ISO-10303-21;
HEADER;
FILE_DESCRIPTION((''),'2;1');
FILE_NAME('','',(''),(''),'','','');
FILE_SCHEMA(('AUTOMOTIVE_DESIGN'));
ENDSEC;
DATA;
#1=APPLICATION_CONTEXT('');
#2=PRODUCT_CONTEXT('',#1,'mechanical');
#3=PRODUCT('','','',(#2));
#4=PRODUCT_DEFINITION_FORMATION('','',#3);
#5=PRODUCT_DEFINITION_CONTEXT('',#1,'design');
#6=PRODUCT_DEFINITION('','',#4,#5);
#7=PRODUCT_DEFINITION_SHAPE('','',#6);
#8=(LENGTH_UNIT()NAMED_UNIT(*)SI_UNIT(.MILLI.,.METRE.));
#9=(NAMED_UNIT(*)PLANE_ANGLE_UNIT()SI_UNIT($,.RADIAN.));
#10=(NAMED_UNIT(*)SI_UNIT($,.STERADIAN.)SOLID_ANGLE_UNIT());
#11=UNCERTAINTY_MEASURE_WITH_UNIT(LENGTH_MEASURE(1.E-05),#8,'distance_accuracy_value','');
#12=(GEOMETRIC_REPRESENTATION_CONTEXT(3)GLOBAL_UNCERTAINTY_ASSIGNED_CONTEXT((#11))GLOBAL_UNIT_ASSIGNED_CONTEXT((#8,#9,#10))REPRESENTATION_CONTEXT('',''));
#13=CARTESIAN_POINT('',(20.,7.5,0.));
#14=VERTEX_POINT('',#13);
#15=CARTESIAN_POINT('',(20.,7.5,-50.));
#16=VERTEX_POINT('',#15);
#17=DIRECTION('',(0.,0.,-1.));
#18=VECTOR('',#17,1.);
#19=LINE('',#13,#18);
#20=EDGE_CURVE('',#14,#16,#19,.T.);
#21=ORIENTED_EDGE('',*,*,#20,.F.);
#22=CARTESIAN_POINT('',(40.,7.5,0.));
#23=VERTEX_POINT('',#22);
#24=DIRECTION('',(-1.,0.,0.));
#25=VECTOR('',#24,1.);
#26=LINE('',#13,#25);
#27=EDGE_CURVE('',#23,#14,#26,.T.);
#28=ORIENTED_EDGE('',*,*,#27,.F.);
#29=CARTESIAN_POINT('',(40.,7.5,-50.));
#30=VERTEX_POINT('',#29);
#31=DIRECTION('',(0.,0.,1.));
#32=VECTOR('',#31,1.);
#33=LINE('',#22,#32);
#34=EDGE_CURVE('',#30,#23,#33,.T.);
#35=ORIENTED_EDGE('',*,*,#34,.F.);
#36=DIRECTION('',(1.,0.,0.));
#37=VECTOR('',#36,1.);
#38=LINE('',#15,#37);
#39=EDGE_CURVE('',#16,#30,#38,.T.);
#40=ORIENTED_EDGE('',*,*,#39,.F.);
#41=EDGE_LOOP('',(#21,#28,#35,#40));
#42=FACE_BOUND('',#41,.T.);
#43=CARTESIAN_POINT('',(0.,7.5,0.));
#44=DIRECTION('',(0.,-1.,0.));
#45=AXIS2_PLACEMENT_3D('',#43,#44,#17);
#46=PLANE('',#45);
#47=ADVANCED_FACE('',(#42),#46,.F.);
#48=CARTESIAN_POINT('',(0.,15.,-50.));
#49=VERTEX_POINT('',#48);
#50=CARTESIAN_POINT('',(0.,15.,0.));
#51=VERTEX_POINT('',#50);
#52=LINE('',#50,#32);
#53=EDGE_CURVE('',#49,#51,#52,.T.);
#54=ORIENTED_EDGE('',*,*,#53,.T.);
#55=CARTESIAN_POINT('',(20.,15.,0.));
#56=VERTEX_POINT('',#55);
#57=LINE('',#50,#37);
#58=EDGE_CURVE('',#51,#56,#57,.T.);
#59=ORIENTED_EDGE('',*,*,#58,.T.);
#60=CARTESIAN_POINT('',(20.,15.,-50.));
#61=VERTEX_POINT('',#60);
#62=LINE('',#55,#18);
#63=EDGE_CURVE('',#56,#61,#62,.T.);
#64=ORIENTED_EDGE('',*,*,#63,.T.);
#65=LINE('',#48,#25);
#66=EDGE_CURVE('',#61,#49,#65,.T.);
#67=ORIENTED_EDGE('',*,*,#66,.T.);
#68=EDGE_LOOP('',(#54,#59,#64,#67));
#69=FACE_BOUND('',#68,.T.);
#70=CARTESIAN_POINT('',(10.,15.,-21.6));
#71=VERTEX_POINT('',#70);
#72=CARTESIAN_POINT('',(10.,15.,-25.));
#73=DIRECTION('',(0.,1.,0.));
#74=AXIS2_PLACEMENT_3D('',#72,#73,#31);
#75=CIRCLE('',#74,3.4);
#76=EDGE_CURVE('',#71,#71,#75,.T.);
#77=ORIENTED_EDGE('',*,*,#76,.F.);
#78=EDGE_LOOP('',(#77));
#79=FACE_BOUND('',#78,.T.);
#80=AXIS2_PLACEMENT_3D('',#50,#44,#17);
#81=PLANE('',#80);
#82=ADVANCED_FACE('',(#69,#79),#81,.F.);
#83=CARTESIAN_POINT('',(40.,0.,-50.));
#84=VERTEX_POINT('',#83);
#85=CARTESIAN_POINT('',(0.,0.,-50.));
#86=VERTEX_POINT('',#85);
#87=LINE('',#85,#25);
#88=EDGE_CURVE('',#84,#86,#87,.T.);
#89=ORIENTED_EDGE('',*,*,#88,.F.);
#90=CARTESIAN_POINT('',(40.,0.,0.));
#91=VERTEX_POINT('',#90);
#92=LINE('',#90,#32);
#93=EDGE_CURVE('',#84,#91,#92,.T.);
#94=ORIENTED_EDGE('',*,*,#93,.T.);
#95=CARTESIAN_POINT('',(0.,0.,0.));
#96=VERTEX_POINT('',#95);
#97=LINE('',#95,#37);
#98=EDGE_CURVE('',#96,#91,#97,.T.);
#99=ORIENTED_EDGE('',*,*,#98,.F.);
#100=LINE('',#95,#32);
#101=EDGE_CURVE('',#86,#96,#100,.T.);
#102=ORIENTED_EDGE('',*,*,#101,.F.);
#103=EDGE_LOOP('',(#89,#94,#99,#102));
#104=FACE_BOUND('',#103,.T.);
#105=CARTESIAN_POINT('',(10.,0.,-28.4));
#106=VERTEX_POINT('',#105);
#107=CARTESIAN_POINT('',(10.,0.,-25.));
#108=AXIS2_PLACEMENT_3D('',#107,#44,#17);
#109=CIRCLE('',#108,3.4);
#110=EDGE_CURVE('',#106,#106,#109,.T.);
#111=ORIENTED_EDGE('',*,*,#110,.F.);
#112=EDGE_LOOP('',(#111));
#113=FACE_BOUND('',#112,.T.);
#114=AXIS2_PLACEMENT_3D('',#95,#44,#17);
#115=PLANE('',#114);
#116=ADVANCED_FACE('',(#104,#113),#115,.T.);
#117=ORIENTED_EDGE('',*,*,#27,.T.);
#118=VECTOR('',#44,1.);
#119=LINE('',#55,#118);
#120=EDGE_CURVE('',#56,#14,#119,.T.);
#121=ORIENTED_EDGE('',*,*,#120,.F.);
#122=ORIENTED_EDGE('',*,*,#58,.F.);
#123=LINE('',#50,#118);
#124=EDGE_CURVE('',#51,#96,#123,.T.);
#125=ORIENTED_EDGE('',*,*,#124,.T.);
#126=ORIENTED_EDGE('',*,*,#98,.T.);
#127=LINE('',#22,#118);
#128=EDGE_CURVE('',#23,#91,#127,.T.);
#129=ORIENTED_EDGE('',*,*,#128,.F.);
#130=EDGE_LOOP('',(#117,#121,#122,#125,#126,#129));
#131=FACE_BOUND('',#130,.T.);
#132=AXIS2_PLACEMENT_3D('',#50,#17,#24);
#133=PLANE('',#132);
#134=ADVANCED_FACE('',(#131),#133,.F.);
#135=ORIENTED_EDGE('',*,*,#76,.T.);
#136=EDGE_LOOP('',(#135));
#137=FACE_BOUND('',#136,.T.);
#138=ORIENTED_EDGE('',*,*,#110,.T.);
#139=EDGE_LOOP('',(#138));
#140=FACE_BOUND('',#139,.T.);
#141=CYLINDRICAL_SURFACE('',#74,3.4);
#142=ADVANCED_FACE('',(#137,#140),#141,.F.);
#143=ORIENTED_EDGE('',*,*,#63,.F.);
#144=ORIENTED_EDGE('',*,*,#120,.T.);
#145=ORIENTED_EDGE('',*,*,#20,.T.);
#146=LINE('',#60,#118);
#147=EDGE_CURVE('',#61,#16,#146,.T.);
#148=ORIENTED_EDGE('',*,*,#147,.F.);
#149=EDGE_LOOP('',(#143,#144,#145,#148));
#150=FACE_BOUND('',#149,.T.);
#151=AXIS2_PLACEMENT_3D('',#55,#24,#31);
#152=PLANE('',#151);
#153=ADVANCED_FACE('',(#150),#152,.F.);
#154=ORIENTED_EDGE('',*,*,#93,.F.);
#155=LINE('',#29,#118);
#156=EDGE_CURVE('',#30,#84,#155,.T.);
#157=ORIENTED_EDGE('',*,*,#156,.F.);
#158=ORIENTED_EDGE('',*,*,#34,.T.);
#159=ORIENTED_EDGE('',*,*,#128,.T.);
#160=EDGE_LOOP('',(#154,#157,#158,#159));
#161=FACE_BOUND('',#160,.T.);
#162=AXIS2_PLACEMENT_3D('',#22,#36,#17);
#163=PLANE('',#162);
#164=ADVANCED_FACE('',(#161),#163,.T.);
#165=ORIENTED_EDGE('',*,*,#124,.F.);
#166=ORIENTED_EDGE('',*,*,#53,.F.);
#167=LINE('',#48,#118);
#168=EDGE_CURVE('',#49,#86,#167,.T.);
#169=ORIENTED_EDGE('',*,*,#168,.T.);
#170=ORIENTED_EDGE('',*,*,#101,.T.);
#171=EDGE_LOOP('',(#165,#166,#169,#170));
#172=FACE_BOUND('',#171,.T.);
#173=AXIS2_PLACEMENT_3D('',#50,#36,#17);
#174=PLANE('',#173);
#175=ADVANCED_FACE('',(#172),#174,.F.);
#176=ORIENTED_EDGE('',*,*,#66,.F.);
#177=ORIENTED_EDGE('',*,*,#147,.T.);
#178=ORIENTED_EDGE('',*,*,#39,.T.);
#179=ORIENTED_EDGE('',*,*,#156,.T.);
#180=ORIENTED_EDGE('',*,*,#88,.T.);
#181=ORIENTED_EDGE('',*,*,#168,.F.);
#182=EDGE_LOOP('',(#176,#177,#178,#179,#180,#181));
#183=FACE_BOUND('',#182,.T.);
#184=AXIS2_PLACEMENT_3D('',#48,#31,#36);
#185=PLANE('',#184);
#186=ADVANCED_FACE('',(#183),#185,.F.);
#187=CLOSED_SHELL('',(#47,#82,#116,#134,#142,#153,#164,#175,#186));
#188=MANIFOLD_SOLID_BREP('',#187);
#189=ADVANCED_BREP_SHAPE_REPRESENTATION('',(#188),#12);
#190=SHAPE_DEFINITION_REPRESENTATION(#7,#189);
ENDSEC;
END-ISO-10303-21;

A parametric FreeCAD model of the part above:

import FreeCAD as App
import Part
import Sketcher

V = App.Vector
Q = App.Units.Quantity

doc = App.newDocument("Part")
body = doc.addObject("PartDesign::Body", "Body")

sketch1 = body.newObject("Sketcher::SketchObject", "Sketch")
sketch1.AttachmentSupport = (doc.getObject("XZ_Plane"), [""])
sketch1.MapMode = "FlatFace"
sketch1.addGeometry(Part.LineSegment(V(0, -50, 0), V(0, 0, 0)), False)
sketch1.addGeometry(Part.LineSegment(V(0, 0, 0), V(20, 0, 0)), False)
sketch1.addGeometry(Part.LineSegment(V(20, 0, 0), V(20, -50, 0)), False)
sketch1.addGeometry(Part.LineSegment(V(20, -50, 0), V(0, -50, 0)), False)
sketch1.addConstraint(Sketcher.Constraint("Coincident", 0, 2, 1, 1))
sketch1.addConstraint(Sketcher.Constraint("Coincident", 1, 2, 2, 1))
sketch1.addConstraint(Sketcher.Constraint("Coincident", 2, 2, 3, 1))
sketch1.addConstraint(Sketcher.Constraint("Coincident", 3, 2, 0, 1))
sketch1.addConstraint(Sketcher.Constraint("Vertical", 0))
sketch1.addConstraint(Sketcher.Constraint("Horizontal", 1))
sketch1.addConstraint(Sketcher.Constraint("Vertical", 2))
sketch1.addConstraint(Sketcher.Constraint("Horizontal", 3))
sketch1.addConstraint(Sketcher.Constraint("Coincident", 0, 2, -1, 1))
sketch1.addConstraint(Sketcher.Constraint("DistanceX", 1, 1, 1, 2, Q("20 mm")))
sketch1.addConstraint(Sketcher.Constraint("DistanceY", 0, 1, 0, 2, Q("50 mm")))
pad1 = body.newObject("PartDesign::Pad", "Pad")
pad1.Profile = sketch1
pad1.Length = 15
pad1.Reversed = True

sketch2 = body.newObject("Sketcher::SketchObject", "Sketch001")
sketch2.AttachmentSupport = (doc.getObject("XZ_Plane"), [""])
sketch2.MapMode = "FlatFace"
sketch2.addGeometry(Part.LineSegment(V(40, -50, 0), V(40, 0, 0)), False)
sketch2.addGeometry(Part.LineSegment(V(40, 0, 0), V(20, 0, 0)), False)
sketch2.addGeometry(Part.LineSegment(V(20, 0, 0), V(20, -50, 0)), False)
sketch2.addGeometry(Part.LineSegment(V(20, -50, 0), V(40, -50, 0)), False)
sketch2.addConstraint(Sketcher.Constraint("Coincident", 0, 2, 1, 1))
sketch2.addConstraint(Sketcher.Constraint("Coincident", 1, 2, 2, 1))
sketch2.addConstraint(Sketcher.Constraint("Coincident", 2, 2, 3, 1))
sketch2.addConstraint(Sketcher.Constraint("Coincident", 3, 2, 0, 1))
sketch2.addConstraint(Sketcher.Constraint("Vertical", 0))
sketch2.addConstraint(Sketcher.Constraint("Horizontal", 1))
sketch2.addConstraint(Sketcher.Constraint("Vertical", 2))
sketch2.addConstraint(Sketcher.Constraint("Horizontal", 3))
sketch2.addConstraint(Sketcher.Constraint("PointOnObject", 0, 2, -1))
sketch2.addConstraint(Sketcher.Constraint("DistanceX", 1, 2, 1, 1, Q("20 mm")))
sketch2.addConstraint(Sketcher.Constraint("DistanceY", 0, 1, 0, 2, Q("50 mm")))
sketch2.addConstraint(Sketcher.Constraint("DistanceX", -1, 1, 0, 2, Q("40 mm")))
pad2 = body.newObject("PartDesign::Pad", "Pad001")
pad2.Profile = sketch2
pad2.Length = 7.5
pad2.Reversed = True

sketch3 = body.newObject("Sketcher::SketchObject", "Sketch002")
sketch3.AttachmentSupport = (doc.getObject("XZ_Plane"), [""])
sketch3.MapMode = "FlatFace"
sketch3.AttachmentOffset = App.Placement(V(0, 0, -15), App.Rotation())
sketch3.addGeometry(Part.Circle(V(10, -25, 0), V(0, 0, 1), 3.4), False)
sketch3.addConstraint(Sketcher.Constraint("Diameter", 0, Q("6.8 mm")))
sketch3.addConstraint(Sketcher.Constraint("DistanceX", -1, 1, 0, 3, Q("10 mm")))
sketch3.addConstraint(Sketcher.Constraint("DistanceY", 0, 3, -1, 1, Q("25 mm")))
doc.recompute()
hole = body.newObject("PartDesign::Hole", "Hole")
hole.Profile = sketch3
hole.ThreadType = "None"
hole.Diameter = 6.8
hole.DepthType = "ThroughAll"
hole.Reversed = True

doc.recompute()
